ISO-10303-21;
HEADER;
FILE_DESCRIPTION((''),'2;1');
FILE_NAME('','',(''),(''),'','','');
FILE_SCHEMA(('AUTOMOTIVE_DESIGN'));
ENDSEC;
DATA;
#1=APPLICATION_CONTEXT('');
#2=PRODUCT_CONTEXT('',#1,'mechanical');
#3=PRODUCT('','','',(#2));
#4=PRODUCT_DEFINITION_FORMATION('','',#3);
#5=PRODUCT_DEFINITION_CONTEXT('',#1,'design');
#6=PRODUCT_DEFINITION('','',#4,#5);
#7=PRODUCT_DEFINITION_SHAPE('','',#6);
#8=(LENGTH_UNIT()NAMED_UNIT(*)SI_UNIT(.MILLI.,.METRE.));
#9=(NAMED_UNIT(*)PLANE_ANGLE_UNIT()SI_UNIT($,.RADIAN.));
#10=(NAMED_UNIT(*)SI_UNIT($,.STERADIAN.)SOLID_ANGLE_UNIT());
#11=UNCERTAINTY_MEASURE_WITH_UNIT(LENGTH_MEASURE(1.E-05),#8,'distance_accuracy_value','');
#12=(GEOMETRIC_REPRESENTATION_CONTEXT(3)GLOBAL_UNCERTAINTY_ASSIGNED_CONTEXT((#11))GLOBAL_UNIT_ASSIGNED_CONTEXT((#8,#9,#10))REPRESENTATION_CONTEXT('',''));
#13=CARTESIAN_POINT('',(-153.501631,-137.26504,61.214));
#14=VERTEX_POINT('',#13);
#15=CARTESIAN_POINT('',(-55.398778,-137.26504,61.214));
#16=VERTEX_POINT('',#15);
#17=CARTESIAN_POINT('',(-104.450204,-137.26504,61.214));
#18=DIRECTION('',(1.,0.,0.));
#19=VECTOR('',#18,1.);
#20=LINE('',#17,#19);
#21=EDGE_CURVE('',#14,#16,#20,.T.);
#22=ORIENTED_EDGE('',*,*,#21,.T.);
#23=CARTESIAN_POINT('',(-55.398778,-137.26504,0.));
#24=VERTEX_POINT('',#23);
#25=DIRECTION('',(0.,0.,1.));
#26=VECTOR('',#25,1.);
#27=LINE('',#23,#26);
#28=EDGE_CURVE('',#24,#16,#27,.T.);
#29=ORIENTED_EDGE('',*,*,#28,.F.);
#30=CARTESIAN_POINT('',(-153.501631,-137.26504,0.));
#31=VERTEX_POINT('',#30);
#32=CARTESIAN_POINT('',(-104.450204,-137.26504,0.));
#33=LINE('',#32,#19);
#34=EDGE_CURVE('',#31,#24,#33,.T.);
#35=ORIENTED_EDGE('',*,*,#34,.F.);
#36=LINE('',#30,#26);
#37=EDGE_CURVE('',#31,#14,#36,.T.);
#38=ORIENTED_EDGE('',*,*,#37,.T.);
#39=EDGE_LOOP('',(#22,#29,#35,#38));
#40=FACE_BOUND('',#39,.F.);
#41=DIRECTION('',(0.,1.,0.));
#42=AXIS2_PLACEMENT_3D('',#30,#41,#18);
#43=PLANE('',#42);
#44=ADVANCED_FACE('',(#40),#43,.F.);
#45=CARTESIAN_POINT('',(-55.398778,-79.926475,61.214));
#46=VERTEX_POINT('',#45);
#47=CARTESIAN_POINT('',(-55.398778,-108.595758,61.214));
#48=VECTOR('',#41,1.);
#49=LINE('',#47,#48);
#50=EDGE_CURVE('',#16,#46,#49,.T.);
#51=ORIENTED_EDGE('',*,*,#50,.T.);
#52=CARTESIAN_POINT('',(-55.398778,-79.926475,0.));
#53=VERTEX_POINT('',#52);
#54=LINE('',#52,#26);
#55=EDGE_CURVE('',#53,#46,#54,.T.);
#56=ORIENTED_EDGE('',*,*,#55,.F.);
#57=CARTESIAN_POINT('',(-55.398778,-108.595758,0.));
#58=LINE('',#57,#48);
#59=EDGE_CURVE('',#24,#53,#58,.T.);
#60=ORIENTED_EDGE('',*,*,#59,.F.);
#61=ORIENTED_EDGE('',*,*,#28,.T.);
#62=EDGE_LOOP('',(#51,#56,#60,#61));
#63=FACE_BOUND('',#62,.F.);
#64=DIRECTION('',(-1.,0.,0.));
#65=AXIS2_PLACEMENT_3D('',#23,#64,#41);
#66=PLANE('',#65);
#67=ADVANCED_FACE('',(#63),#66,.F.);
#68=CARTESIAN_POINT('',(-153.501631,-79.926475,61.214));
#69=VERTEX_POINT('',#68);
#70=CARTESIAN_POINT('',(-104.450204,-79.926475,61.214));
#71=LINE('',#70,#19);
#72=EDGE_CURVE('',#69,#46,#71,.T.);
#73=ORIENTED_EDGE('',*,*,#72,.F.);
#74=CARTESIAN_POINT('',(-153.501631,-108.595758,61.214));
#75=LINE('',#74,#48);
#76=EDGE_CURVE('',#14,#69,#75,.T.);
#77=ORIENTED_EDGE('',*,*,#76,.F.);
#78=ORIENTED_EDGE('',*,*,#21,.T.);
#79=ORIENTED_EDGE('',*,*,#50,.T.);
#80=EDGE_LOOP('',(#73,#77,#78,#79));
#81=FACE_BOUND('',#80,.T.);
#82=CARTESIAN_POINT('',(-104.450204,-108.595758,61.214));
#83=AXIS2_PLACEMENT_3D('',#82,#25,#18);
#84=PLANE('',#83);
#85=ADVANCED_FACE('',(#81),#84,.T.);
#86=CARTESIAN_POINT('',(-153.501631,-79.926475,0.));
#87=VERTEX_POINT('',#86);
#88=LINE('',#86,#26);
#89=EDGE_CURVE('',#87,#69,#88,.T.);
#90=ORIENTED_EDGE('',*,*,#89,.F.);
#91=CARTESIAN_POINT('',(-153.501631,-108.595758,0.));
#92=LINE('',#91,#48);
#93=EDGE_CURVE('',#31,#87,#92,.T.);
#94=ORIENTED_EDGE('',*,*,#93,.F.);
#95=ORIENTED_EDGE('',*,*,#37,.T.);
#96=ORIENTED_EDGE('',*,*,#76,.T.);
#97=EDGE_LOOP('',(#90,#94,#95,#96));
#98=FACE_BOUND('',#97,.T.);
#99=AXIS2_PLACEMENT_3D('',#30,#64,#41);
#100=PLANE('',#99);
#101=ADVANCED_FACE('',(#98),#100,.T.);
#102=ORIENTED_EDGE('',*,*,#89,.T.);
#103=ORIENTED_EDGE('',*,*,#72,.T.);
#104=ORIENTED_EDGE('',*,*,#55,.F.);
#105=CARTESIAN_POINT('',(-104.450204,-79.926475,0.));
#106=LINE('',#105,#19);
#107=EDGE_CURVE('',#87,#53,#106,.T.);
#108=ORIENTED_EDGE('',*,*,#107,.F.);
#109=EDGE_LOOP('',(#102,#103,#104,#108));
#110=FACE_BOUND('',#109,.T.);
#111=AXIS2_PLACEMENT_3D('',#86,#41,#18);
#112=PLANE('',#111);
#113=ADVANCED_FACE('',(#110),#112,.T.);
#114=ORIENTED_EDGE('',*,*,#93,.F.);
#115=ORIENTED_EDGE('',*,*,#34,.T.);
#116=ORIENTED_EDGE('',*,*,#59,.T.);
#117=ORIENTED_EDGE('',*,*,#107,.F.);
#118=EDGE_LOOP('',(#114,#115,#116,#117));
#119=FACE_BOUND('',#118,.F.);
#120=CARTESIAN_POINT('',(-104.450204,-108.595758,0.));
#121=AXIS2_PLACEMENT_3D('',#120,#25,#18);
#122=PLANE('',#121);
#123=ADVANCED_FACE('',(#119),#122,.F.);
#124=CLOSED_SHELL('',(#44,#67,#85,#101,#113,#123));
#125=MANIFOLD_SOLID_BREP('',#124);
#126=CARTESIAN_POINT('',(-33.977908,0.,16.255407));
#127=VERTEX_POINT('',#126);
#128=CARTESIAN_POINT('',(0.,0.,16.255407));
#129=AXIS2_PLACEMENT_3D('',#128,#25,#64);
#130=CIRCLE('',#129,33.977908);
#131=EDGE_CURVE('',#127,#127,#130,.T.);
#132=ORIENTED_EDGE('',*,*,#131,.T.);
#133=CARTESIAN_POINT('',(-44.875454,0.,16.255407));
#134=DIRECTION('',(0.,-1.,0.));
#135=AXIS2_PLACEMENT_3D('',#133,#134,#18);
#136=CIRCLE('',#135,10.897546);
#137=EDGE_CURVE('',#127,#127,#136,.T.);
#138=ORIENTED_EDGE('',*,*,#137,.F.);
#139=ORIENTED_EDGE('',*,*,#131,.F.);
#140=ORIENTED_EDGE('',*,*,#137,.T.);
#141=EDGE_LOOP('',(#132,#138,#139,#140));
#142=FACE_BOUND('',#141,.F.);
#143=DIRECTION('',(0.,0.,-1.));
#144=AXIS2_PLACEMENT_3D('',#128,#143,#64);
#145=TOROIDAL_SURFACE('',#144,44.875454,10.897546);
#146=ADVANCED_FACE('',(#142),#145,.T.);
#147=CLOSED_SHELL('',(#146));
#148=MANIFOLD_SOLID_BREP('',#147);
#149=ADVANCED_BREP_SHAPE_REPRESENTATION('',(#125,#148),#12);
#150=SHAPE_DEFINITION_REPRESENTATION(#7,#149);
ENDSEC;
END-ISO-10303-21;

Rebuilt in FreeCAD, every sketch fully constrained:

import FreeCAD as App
import Part
import Sketcher
from FreeCAD import Vector
Q = App.Units.Quantity


def add_polygon(sketch, points):
    """Adds a closed chain of lines whose ends are joined by coincident constraints."""
    first, n = sketch.GeometryCount, len(points)
    for a, b in zip(points, points[1:] + points[:1]):
        sketch.addGeometry(Part.LineSegment(App.Vector(*a, 0), App.Vector(*b, 0)), False)
    for i in range(n):
        sketch.addConstraint(Sketcher.Constraint("Coincident", first + i, 2, first + (i + 1) % n, 1))

doc = App.newDocument("Part")
body = doc.addObject("PartDesign::Body", "Body")

# Sketch on XZ plane
sketch1 = body.newObject("Sketcher::SketchObject", "Sketch")
sketch1.AttachmentSupport = (doc.getObject("XZ_Plane"), [""])
sketch1.MapMode = "FlatFace"
sketch1.addGeometry(Part.Circle(Vector(-45, 16, 0), Vector(0, 0, 1), 11), False)
sketch1.addConstraint(Sketcher.Constraint("Diameter", 0, Q("21.795092 mm")))
sketch1.addConstraint(Sketcher.Constraint("DistanceX", 0, 3, -1, 1, Q("44.875454 mm")))
sketch1.addConstraint(Sketcher.Constraint("DistanceY", -1, 1, 0, 3, Q("16.255407 mm")))
revolution = body.newObject("PartDesign::Revolution", "Revolution")
revolution.Profile = sketch1
revolution.ReferenceAxis = (sketch1, ["V_Axis"])
revolution.Angle = 360
body2 = doc.addObject("PartDesign::Body", "Body001")

# Sketch on XY plane
sketch2 = body2.newObject("Sketcher::SketchObject", "Sketch001")
sketch2.AttachmentSupport = (doc.getObject("XY_Plane001"), [""])
sketch2.MapMode = "FlatFace"
add_polygon(sketch2, [(-154, -80), (-154, -137), (-55, -137), (-55, -80)])  # lines 0-3
sketch2.addConstraint(Sketcher.Constraint("Vertical", 0))
sketch2.addConstraint(Sketcher.Constraint("Horizontal", 1))
sketch2.addConstraint(Sketcher.Constraint("Vertical", 2))
sketch2.addConstraint(Sketcher.Constraint("Horizontal", 3))
sketch2.addConstraint(Sketcher.Constraint("DistanceX", 1, 1, 1, 2, Q("98.102853 mm")))
sketch2.addConstraint(Sketcher.Constraint("DistanceY", 0, 2, 0, 1, Q("57.338565 mm")))
sketch2.addConstraint(Sketcher.Constraint("DistanceX", 0, 2, -1, 1, Q("153.501631 mm")))
sketch2.addConstraint(Sketcher.Constraint("DistanceY", 0, 2, -1, 1, Q("137.26504 mm")))
pad1 = body2.newObject("PartDesign::Pad", "Pad")
pad1.Profile = sketch2
pad1.Length = Q("2.41 in")

doc.recompute()
